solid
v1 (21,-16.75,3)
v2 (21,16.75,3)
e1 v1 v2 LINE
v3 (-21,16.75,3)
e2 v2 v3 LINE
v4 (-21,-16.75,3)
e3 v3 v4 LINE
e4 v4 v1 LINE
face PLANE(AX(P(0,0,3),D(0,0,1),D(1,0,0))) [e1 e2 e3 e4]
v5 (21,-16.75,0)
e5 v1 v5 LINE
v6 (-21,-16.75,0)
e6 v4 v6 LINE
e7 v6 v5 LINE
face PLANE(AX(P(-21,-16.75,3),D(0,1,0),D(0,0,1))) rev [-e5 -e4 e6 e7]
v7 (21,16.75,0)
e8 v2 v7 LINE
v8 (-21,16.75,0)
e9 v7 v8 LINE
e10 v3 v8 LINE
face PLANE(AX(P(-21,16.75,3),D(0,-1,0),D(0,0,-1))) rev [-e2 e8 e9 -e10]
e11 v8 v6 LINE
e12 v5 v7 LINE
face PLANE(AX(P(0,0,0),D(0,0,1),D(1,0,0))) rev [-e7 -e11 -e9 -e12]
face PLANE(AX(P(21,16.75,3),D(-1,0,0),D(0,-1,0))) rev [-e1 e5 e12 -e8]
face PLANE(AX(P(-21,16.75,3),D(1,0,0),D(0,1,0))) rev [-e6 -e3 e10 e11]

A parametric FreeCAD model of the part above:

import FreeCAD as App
import Part
import Sketcher
from FreeCAD import Vector
Q = App.Units.Quantity


def add_polygon(sketch, points):
    """Adds a closed chain of lines whose ends are joined by coincident constraints."""
    first, n = sketch.GeometryCount, len(points)
    for a, b in zip(points, points[1:] + points[:1]):
        sketch.addGeometry(Part.LineSegment(App.Vector(*a, 0), App.Vector(*b, 0)), False)
    for i in range(n):
        sketch.addConstraint(Sketcher.Constraint("Coincident", first + i, 2, first + (i + 1) % n, 1))

doc = App.newDocument("Part")
body = doc.addObject("PartDesign::Body", "Body")

# Sketch on XY plane
sketch1 = doc.addObject("Sketcher::SketchObject", "Sketch")
body.addObject(sketch1)
sketch1.AttachmentSupport = (doc.XY_Plane, [""])
sketch1.MapMode = "FlatFace"
add_polygon(sketch1, [(-21, 17), (-21, -17), (21, -17), (21, 17)])  # lines 0-3
sketch1.addConstraint(Sketcher.Constraint("Vertical", 0))
sketch1.addConstraint(Sketcher.Constraint("Horizontal", 1))
sketch1.addConstraint(Sketcher.Constraint("Vertical", 2))
sketch1.addConstraint(Sketcher.Constraint("Horizontal", 3))
sketch1.addConstraint(Sketcher.Constraint("Symmetric", 0, 2, 2, 2, -1, 1))
sketch1.addConstraint(Sketcher.Constraint("DistanceX", 1, 1, 1, 2, Q("42 mm")))
sketch1.addConstraint(Sketcher.Constraint("DistanceY", 0, 2, 0, 1, Q("33.5 mm")))
pad1 = doc.addObject("PartDesign::Pad", "Pad")
body.addObject(pad1)
pad1.Profile = sketch1
pad1.Length = 3

doc.recompute()
